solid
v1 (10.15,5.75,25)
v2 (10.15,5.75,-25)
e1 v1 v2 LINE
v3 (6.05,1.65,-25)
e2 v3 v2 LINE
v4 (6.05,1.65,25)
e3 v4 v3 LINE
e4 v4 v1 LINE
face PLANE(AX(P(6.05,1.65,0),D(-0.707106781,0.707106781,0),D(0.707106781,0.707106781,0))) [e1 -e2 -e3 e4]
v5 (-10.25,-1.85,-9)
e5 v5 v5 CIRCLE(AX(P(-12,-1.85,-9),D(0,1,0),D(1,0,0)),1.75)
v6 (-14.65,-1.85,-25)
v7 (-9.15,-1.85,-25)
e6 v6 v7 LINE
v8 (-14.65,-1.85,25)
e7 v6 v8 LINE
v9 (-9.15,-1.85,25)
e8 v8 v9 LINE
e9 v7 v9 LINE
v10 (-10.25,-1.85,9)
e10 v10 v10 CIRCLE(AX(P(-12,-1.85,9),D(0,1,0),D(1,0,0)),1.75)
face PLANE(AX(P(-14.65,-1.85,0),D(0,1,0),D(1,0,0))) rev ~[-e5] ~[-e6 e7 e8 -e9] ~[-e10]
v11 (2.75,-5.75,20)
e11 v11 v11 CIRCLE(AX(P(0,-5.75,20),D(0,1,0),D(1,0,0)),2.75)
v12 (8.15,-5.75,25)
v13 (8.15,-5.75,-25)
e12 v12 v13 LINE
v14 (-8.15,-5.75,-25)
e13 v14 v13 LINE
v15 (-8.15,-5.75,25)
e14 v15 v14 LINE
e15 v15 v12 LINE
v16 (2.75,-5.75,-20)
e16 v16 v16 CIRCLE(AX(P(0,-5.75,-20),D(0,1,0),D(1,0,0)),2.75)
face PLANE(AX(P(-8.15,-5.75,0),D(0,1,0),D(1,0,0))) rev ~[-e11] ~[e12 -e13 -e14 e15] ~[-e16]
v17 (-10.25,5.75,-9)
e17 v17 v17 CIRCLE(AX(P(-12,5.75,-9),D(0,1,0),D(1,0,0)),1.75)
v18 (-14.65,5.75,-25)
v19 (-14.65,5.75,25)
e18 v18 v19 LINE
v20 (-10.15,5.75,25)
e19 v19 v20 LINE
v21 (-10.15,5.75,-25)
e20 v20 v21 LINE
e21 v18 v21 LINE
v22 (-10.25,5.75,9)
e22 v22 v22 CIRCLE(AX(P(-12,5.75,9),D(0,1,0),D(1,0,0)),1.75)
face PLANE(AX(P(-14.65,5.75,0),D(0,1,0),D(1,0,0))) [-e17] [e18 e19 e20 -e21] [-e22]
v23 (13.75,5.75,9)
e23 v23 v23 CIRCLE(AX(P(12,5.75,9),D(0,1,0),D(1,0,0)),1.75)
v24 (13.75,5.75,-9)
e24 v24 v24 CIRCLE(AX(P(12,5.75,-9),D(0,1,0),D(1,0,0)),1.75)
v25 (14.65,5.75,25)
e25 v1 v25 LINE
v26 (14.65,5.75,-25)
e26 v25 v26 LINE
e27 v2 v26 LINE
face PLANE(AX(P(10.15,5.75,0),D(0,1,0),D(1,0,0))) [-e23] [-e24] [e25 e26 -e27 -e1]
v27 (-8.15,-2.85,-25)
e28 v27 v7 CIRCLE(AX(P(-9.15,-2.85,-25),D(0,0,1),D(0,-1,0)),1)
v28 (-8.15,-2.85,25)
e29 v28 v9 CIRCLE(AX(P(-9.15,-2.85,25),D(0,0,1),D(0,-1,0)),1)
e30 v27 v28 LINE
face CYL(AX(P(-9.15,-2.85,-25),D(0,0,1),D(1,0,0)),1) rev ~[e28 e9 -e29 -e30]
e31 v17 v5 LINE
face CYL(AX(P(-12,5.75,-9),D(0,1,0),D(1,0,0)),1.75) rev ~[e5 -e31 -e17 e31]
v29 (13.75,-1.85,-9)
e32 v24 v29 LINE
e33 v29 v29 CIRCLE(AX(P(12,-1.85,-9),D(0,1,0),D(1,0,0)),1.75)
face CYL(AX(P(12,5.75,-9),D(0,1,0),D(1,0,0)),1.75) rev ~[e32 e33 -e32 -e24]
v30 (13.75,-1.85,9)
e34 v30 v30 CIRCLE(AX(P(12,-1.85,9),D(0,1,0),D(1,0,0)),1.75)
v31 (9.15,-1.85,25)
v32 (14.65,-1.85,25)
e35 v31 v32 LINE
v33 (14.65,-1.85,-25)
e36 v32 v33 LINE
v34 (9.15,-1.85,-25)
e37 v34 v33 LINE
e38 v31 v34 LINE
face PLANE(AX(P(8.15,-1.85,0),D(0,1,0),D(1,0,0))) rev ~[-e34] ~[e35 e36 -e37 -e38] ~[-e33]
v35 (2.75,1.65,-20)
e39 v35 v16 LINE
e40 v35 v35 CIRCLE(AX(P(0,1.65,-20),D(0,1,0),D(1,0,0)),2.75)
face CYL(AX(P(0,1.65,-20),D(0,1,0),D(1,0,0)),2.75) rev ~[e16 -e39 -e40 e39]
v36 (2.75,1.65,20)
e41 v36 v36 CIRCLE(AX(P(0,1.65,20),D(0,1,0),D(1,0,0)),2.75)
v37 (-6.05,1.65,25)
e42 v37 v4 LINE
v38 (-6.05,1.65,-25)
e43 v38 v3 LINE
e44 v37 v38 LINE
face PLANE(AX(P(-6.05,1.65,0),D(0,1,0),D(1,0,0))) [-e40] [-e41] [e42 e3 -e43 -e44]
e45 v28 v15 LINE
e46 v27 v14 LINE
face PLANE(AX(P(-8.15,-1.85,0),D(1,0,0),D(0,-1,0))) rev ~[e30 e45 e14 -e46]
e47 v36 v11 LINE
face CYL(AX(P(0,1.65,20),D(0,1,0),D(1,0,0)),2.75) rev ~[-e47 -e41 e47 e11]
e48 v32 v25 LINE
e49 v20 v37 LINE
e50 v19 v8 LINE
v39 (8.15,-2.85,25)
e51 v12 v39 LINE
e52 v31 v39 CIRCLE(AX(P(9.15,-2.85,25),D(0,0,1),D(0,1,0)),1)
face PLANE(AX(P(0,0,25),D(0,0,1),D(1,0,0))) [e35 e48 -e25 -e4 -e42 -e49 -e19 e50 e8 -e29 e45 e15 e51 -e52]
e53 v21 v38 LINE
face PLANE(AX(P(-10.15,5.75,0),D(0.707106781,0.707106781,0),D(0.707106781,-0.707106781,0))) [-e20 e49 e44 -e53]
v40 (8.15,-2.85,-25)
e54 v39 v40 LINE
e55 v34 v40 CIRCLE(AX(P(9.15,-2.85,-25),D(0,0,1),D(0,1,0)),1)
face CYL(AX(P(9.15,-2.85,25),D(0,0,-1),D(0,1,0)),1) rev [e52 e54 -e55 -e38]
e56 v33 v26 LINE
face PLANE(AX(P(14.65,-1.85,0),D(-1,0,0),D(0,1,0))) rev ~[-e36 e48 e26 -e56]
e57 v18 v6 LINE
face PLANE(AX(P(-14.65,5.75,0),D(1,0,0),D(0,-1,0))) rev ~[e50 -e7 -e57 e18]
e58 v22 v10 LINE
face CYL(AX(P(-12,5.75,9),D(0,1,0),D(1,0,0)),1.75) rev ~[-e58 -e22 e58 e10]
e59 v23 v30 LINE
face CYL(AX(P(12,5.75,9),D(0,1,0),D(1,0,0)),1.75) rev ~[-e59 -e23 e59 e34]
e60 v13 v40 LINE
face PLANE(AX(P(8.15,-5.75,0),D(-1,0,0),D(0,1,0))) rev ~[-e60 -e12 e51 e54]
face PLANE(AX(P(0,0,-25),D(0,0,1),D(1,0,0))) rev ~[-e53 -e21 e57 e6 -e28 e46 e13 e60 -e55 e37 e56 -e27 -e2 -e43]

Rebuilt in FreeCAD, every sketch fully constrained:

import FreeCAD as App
import Part
import Sketcher

V = App.Vector
Q = App.Units.Quantity


def edges_at(feature, points):
    """Names of the edges that pass closest to the given points."""
    edges = feature.Shape.Edges
    near = lambda p: min(range(len(edges)), key=lambda i: edges[i].distToShape(Part.Vertex(*p))[0])
    return sorted({f"Edge{near(p) + 1}" for p in points})

doc = App.newDocument("Part")
body = doc.addObject("PartDesign::Body", "Body")

sketch1 = body.newObject("Sketcher::SketchObject", "Sketch")
sketch1.AttachmentSupport = (doc.getObject("XY_Plane"), [""])
sketch1.MapMode = "FlatFace"
sketch1.addGeometry([
    Part.LineSegment(V(-10.2, 5.8, 0), V(-14.7, 5.8, 0)),
    Part.LineSegment(V(-14.7, 5.8, 0), V(-14.7, -1.9, 0)),
    Part.LineSegment(V(-14.7, -1.9, 0), V(-8.2, -1.9, 0)),
    Part.LineSegment(V(-8.2, -1.9, 0), V(-8.2, -5.8, 0)),
    Part.LineSegment(V(-8.2, -5.8, 0), V(8.2, -5.8, 0)),
    Part.LineSegment(V(8.2, -5.8, 0), V(8.2, -1.9, 0)),
    Part.LineSegment(V(8.2, -1.9, 0), V(14.7, -1.9, 0)),
    Part.LineSegment(V(14.7, -1.9, 0), V(14.7, 5.8, 0)),
    Part.LineSegment(V(14.7, 5.8, 0), V(10.2, 5.8, 0)),
    Part.LineSegment(V(10.2, 5.8, 0), V(6, 1.6, 0)),
    Part.LineSegment(V(6, 1.6, 0), V(-6, 1.6, 0)),
    Part.LineSegment(V(-6, 1.6, 0), V(-10.2, 5.8, 0)),
], False)
sketch1.addConstraint([
    Sketcher.Constraint("Coincident", 0, 2, 1, 1),
    Sketcher.Constraint("Coincident", 1, 2, 2, 1),
    Sketcher.Constraint("Coincident", 2, 2, 3, 1),
    Sketcher.Constraint("Coincident", 3, 2, 4, 1),
    Sketcher.Constraint("Coincident", 4, 2, 5, 1),
    Sketcher.Constraint("Coincident", 5, 2, 6, 1),
    Sketcher.Constraint("Coincident", 6, 2, 7, 1),
    Sketcher.Constraint("Coincident", 7, 2, 8, 1),
    Sketcher.Constraint("Coincident", 8, 2, 9, 1),
    Sketcher.Constraint("Coincident", 9, 2, 10, 1),
    Sketcher.Constraint("Coincident", 10, 2, 11, 1),
    Sketcher.Constraint("Coincident", 11, 2, 0, 1),
    Sketcher.Constraint("Horizontal", 0),
    Sketcher.Constraint("Vertical", 1),
    Sketcher.Constraint("Horizontal", 2),
    Sketcher.Constraint("Vertical", 3),
    Sketcher.Constraint("Horizontal", 4),
    Sketcher.Constraint("Vertical", 5),
    Sketcher.Constraint("Horizontal", 6),
    Sketcher.Constraint("Vertical", 7),
    Sketcher.Constraint("Horizontal", 8),
    Sketcher.Constraint("Horizontal", 10),
    Sketcher.Constraint("Symmetric", 2, 2, 5, 2, -2),
    Sketcher.Constraint("Symmetric", 0, 2, 7, 2, -2),
    Sketcher.Constraint("Perpendicular", 9, 11),
    Sketcher.Constraint("Equal", 0, 8),
    Sketcher.Constraint("Equal", 9, 11),
    Sketcher.Constraint("DistanceX", 0, 2, 0, 1, Q("4.5 mm")),
    Sketcher.Constraint("DistanceX", 2, 1, 2, 2, Q("6.5 mm")),
    Sketcher.Constraint("DistanceX", 10, 2, 10, 1, Q("12.1 mm")),
    Sketcher.Constraint("DistanceY", 1, 2, 1, 1, Q("7.6 mm")),
    Sketcher.Constraint("DistanceY", 3, 2, 0, 2, Q("11.5 mm")),
    Sketcher.Constraint("DistanceX", 9, 2, 8, 2, Q("4.1 mm")),
    Sketcher.Constraint("DistanceY", -1, 1, 0, 2, Q("5.75 mm")),
])
pad1 = body.newObject("PartDesign::Pad", "Pad")
pad1.Profile = sketch1
pad1.Length = 50
pad1.Midplane = True

sketch2 = body.newObject("Sketcher::SketchObject", "Sketch001")
sketch2.AttachmentSupport = (doc.getObject("XZ_Plane"), [""])
sketch2.MapMode = "FlatFace"
sketch2.AttachmentOffset = App.Placement(V(0, 0, -5.75), App.Rotation())
sketch2.addGeometry([
    Part.Circle(V(-12, -9, 0), V(0, 0, 1), 1.8),
    Part.Circle(V(12, -9, 0), V(0, 0, 1), 1.8),
    Part.Circle(V(-12, 9, 0), V(0, 0, 1), 1.8),
    Part.Circle(V(12, 9, 0), V(0, 0, 1), 1.8),
], False)
sketch2.addConstraint([
    Sketcher.Constraint("Equal", 0, 1),
    Sketcher.Constraint("Equal", 1, 2),
    Sketcher.Constraint("Equal", 2, 3),
    Sketcher.Constraint("Symmetric", 1, 3, 2, 3, -1, 1),
    Sketcher.Constraint("Symmetric", 0, 3, 3, 3, -1, 1),
    Sketcher.Constraint("Symmetric", 0, 3, 1, 3, -2),
    Sketcher.Constraint("Diameter", 0, Q("3.5 mm")),
    Sketcher.Constraint("DistanceX", 0, 3, 1, 3, Q("24 mm")),
    Sketcher.Constraint("DistanceY", 0, 3, 2, 3, Q("18 mm")),
])
pocket1 = body.newObject("PartDesign::Pocket", "Pocket")
pocket1.Profile = sketch2
pocket1.Type = "ThroughAll"
pocket1.Reversed = True

sketch3 = body.newObject("Sketcher::SketchObject", "Sketch002")
sketch3.AttachmentSupport = (doc.getObject("XZ_Plane"), [""])
sketch3.MapMode = "FlatFace"
sketch3.AttachmentOffset = App.Placement(V(0, 0, -1.65), App.Rotation())
sketch3.addGeometry([
    Part.Circle(V(0, -20, 0), V(0, 0, 1), 2.8),
    Part.Circle(V(0, 20, 0), V(0, 0, 1), 2.8),
], False)
sketch3.addConstraint([
    Sketcher.Constraint("Equal", 0, 1),
    Sketcher.Constraint("Symmetric", 0, 3, 1, 3, -1, 1),
    Sketcher.Constraint("PointOnObject", 0, 3, -2),
    Sketcher.Constraint("Diameter", 0, Q("5.5 mm")),
    Sketcher.Constraint("DistanceY", 0, 3, 1, 3, Q("40 mm")),
])
pocket2 = body.newObject("PartDesign::Pocket", "Pocket001")
pocket2.Profile = sketch3
pocket2.Type = "ThroughAll"
pocket2.Reversed = True
doc.recompute()

fillet = body.newObject("PartDesign::Fillet", "Fillet")
fillet.Base = (pocket2, edges_at(pocket2, [(8.15, -1.85, 0), (-8.15, -1.85, 0)]))
fillet.Radius = 1

doc.recompute()
